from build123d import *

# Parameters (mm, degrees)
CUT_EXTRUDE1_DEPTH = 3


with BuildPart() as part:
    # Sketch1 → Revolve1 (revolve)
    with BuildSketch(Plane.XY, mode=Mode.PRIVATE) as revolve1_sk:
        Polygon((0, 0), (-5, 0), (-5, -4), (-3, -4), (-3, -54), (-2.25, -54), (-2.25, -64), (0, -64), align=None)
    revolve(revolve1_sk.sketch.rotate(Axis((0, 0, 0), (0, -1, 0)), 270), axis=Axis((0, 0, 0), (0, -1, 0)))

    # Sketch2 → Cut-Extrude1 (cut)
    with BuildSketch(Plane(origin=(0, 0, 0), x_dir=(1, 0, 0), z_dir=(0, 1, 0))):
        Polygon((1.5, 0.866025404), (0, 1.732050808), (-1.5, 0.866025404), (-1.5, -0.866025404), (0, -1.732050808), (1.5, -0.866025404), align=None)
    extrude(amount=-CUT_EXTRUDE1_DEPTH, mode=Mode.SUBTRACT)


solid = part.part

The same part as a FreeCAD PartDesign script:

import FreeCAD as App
import Part
import Sketcher

V = App.Vector
Q = App.Units.Quantity

doc = App.newDocument("Part")
body = doc.addObject("PartDesign::Body", "Body")

sketch1 = body.newObject("Sketcher::SketchObject", "Sketch")
sketch1.AttachmentSupport = (doc.getObject("XY_Plane"), [""])
sketch1.MapMode = "FlatFace"
sketch1.addGeometry(Part.LineSegment(V(0, 0, 0), V(-5, 0, 0)), False)
sketch1.addGeometry(Part.LineSegment(V(-5, 0, 0), V(-5, -4, 0)), False)
sketch1.addGeometry(Part.LineSegment(V(-5, -4, 0), V(-3, -4, 0)), False)
sketch1.addGeometry(Part.LineSegment(V(-3, -4, 0), V(-3, -54, 0)), False)
sketch1.addGeometry(Part.LineSegment(V(-3, -54, 0), V(-2.2, -54, 0)), False)
sketch1.addGeometry(Part.LineSegment(V(-2.2, -54, 0), V(-2.2, -64, 0)), False)
sketch1.addGeometry(Part.LineSegment(V(-2.2, -64, 0), V(0, -64, 0)), False)
sketch1.addGeometry(Part.LineSegment(V(0, -64, 0), V(0, 0, 0)), False)
sketch1.addConstraint(Sketcher.Constraint("Coincident", 0, 2, 1, 1))
sketch1.addConstraint(Sketcher.Constraint("Coincident", 1, 2, 2, 1))
sketch1.addConstraint(Sketcher.Constraint("Coincident", 2, 2, 3, 1))
sketch1.addConstraint(Sketcher.Constraint("Coincident", 3, 2, 4, 1))
sketch1.addConstraint(Sketcher.Constraint("Coincident", 4, 2, 5, 1))
sketch1.addConstraint(Sketcher.Constraint("Coincident", 5, 2, 6, 1))
sketch1.addConstraint(Sketcher.Constraint("Coincident", 6, 2, 7, 1))
sketch1.addConstraint(Sketcher.Constraint("Coincident", 7, 2, 0, 1))
sketch1.addConstraint(Sketcher.Constraint("Horizontal", 0))
sketch1.addConstraint(Sketcher.Constraint("Vertical", 1))
sketch1.addConstraint(Sketcher.Constraint("Horizontal", 2))
sketch1.addConstraint(Sketcher.Constraint("Vertical", 3))
sketch1.addConstraint(Sketcher.Constraint("Horizontal", 4))
sketch1.addConstraint(Sketcher.Constraint("Vertical", 5))
sketch1.addConstraint(Sketcher.Constraint("Horizontal", 6))
sketch1.addConstraint(Sketcher.Constraint("Vertical", 7))
sketch1.addConstraint(Sketcher.Constraint("Coincident", 7, 2, -1, 1))
sketch1.addConstraint(Sketcher.Constraint("DistanceX", 0, 2, 0, 1, Q("5 mm")))
sketch1.addConstraint(Sketcher.Constraint("DistanceX", 2, 1, 2, 2, Q("2 mm")))
sketch1.addConstraint(Sketcher.Constraint("DistanceY", 1, 2, 1, 1, Q("4 mm")))
sketch1.addConstraint(Sketcher.Constraint("DistanceY", 3, 2, 3, 1, Q("50 mm")))
sketch1.addConstraint(Sketcher.Constraint("DistanceY", 5, 2, 5, 1, Q("10 mm")))
sketch1.addConstraint(Sketcher.Constraint("DistanceX", 4, 1, 4, 2, Q("0.75 mm")))
revolution = body.newObject("PartDesign::Revolution", "Revolution")
revolution.Profile = sketch1
revolution.ReferenceAxis = (sketch1, ["V_Axis"])
revolution.Angle = 360

sketch2 = body.newObject("Sketcher::SketchObject", "Sketch001")
sketch2.AttachmentSupport = (doc.getObject("XZ_Plane"), [""])
sketch2.MapMode = "FlatFace"
sketch2.addGeometry(Part.LineSegment(V(1.5, -0.9, 0), V(0, -1.7, 0)), False)
sketch2.addGeometry(Part.LineSegment(V(0, -1.7, 0), V(-1.5, -0.9, 0)), False)
sketch2.addGeometry(Part.LineSegment(V(-1.5, -0.9, 0), V(-1.5, 0.9, 0)), False)
sketch2.addGeometry(Part.LineSegment(V(-1.5, 0.9, 0), V(0, 1.7, 0)), False)
sketch2.addGeometry(Part.LineSegment(V(0, 1.7, 0), V(1.5, 0.9, 0)), False)
sketch2.addGeometry(Part.LineSegment(V(1.5, 0.9, 0), V(1.5, -0.9, 0)), False)
sketch2.addConstraint(Sketcher.Constraint("Coincident", 0, 2, 1, 1))
sketch2.addConstraint(Sketcher.Constraint("Coincident", 1, 2, 2, 1))
sketch2.addConstraint(Sketcher.Constraint("Coincident", 2, 2, 3, 1))
sketch2.addConstraint(Sketcher.Constraint("Coincident", 3, 2, 4, 1))
sketch2.addConstraint(Sketcher.Constraint("Coincident", 4, 2, 5, 1))
sketch2.addConstraint(Sketcher.Constraint("Coincident", 5, 2, 0, 1))
sketch2.addConstraint(Sketcher.Constraint("Vertical", 2))
sketch2.addConstraint(Sketcher.Constraint("Vertical", 5))
sketch2.addConstraint(Sketcher.Constraint("Symmetric", 0, 2, 3, 2, -1, 1))
sketch2.addConstraint(Sketcher.Constraint("Symmetric", 1, 2, 4, 2, -1, 1))
sketch2.addConstraint(Sketcher.Constraint("PointOnObject", 0, 2, -2))
sketch2.addConstraint(Sketcher.Constraint("Parallel", 0, 3))
sketch2.addConstraint(Sketcher.Constraint("Horizontal", 2, 2, 4, 2))
sketch2.addConstraint(Sketcher.Constraint("Angle", 0, Q("-150 deg")))
sketch2.addConstraint(Sketcher.Constraint("DistanceX", 2, 2, 4, 2, Q("3 mm")))
sketch2.addConstraint(Sketcher.Constraint("DistanceY", 2, 1, 2, 2, Q("1.732051 mm")))
pocket1 = body.newObject("PartDesign::Pocket", "Pocket")
pocket1.Profile = sketch2
pocket1.Length = 3
pocket1.Reversed = True

doc.recompute()
